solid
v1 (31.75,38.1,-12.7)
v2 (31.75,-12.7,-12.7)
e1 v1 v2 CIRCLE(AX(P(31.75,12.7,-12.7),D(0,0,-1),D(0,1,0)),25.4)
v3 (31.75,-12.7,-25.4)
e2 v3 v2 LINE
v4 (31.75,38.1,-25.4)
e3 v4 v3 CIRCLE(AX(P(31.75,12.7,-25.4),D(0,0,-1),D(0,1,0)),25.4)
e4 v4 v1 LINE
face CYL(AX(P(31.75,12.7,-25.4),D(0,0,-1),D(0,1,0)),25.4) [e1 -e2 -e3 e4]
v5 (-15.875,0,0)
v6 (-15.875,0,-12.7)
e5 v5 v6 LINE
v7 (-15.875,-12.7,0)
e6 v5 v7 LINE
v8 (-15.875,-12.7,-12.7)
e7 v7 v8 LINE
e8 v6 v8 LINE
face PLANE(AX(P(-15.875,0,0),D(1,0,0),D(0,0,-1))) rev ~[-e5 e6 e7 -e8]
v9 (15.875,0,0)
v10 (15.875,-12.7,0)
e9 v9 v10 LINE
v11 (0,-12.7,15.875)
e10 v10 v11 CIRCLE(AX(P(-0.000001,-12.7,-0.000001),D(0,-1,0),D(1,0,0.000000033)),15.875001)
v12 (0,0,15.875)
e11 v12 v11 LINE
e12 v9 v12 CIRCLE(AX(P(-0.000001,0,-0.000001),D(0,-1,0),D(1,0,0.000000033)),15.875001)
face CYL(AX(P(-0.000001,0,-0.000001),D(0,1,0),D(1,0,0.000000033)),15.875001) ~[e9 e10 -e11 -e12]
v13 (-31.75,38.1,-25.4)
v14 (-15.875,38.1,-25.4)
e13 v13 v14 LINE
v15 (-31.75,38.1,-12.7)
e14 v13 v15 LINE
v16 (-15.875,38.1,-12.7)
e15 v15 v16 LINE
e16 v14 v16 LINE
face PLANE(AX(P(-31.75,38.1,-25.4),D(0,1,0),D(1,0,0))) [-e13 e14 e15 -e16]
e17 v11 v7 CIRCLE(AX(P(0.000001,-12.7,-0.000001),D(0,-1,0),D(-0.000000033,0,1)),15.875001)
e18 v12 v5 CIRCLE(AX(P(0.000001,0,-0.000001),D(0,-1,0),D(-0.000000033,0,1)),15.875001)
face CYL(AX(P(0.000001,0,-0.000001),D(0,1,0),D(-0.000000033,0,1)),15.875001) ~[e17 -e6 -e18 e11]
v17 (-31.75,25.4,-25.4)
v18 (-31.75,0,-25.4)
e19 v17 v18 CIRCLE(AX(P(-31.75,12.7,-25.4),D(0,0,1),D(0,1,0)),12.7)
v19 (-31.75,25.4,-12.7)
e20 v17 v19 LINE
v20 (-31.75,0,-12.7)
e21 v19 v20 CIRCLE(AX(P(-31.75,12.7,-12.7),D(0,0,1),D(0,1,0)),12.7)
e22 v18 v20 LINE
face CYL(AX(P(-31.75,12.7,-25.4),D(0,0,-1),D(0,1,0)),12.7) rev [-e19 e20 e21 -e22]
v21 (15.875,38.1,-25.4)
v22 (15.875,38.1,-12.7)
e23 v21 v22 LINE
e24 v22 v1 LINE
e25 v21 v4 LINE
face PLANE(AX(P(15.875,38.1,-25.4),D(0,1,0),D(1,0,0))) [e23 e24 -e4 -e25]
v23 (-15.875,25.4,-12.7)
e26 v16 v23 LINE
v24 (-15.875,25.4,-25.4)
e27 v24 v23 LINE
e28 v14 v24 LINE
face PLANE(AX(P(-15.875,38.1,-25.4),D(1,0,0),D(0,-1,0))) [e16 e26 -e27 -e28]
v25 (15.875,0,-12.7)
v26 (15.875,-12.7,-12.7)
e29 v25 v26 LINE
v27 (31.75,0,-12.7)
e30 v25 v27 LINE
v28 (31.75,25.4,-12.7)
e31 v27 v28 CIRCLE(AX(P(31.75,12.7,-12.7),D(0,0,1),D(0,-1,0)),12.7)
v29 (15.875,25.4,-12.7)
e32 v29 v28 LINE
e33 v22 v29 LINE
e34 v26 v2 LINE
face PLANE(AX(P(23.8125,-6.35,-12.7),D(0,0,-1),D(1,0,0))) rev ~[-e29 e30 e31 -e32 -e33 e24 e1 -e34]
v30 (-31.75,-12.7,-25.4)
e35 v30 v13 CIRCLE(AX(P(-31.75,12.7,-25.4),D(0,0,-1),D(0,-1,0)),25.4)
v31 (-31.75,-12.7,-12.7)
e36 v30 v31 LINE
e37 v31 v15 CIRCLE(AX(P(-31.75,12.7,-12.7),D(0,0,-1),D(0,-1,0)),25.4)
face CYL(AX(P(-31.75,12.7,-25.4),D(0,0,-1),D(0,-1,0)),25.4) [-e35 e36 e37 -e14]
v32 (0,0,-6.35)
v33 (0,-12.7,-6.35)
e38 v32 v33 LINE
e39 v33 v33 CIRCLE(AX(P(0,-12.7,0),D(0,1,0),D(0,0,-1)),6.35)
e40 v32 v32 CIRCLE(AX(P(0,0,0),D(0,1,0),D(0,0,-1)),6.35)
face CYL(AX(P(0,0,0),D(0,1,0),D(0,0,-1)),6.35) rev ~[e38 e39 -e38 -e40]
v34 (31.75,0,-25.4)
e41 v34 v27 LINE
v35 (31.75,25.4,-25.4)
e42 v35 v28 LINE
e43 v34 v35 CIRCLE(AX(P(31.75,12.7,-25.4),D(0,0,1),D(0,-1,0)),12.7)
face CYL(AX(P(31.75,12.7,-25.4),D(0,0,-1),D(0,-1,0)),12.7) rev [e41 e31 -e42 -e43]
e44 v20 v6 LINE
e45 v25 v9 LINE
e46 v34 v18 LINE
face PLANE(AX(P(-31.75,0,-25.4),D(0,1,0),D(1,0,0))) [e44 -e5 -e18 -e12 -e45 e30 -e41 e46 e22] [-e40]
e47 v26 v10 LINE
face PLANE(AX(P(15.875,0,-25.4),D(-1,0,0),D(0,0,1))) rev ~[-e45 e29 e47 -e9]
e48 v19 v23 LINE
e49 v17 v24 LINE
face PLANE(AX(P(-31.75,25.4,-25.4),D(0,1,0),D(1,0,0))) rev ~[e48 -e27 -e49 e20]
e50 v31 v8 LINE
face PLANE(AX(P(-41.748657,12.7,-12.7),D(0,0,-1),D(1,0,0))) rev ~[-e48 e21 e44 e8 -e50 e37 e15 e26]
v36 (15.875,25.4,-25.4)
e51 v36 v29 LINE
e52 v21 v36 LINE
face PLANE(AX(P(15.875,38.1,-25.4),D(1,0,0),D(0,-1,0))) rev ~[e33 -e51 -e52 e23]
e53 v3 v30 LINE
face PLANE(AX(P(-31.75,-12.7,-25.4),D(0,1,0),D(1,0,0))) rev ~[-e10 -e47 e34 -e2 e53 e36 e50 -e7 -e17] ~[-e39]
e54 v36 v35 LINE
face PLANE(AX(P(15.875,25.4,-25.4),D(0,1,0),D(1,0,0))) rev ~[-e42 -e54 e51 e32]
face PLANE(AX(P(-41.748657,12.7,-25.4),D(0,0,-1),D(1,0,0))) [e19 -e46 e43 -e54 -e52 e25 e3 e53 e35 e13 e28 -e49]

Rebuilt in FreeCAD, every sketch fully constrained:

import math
import FreeCAD as App
import Part
import Sketcher
Q = App.Units.Quantity

doc = App.newDocument("Part")
body = doc.addObject("PartDesign::Body", "Body")

# Sketch on XZ plane
sketch1 = body.newObject("Sketcher::SketchObject", "Sketch")
sketch1.AttachmentSupport = (doc.getObject("XZ_Plane"), [""])
sketch1.MapMode = "FlatFace"
sketch1.addGeometry(Part.LineSegment(App.Vector(16, -25, 0), App.Vector(16, 0, 0)), False)
sketch1.addGeometry(Part.ArcOfCircle(Part.Circle(App.Vector(0, 0, 0), App.Vector(0, 0, 1), 16), math.radians(0), math.radians(90)), False)
sketch1.addGeometry(Part.ArcOfCircle(Part.Circle(App.Vector(0, 0, 0), App.Vector(0, 0, 1), 16), math.radians(90), math.radians(180)), False)
sketch1.addGeometry(Part.LineSegment(App.Vector(-16, 0, 0), App.Vector(-16, -25, 0)), False)
sketch1.addGeometry(Part.LineSegment(App.Vector(-16, -25, 0), App.Vector(16, -25, 0)), False)
sketch1.addGeometry(Part.Circle(App.Vector(0, 0, 0), App.Vector(0, 0, 1), 6), False)
sketch1.addConstraint(Sketcher.Constraint("Tangent", 0, 2, 1, 1))
sketch1.addConstraint(Sketcher.Constraint("Tangent", 1, 2, 2, 1))
sketch1.addConstraint(Sketcher.Constraint("Tangent", 2, 2, 3, 1))
sketch1.addConstraint(Sketcher.Constraint("Coincident", 3, 2, 4, 1))
sketch1.addConstraint(Sketcher.Constraint("Coincident", 4, 2, 0, 1))
sketch1.addConstraint(Sketcher.Constraint("Vertical", 0))
sketch1.addConstraint(Sketcher.Constraint("Vertical", 3))
sketch1.addConstraint(Sketcher.Constraint("Horizontal", 4))
sketch1.addConstraint(Sketcher.Constraint("Coincident", 1, 3, -1, 1))
sketch1.addConstraint(Sketcher.Constraint("Coincident", 5, 3, -1, 1))
sketch1.addConstraint(Sketcher.Constraint("Equal", 1, 2))
sketch1.addConstraint(Sketcher.Constraint("PointOnObject", 1, 2, -2))
sketch1.addConstraint(Sketcher.Constraint("Diameter", 5, Q("0.5 in")))
sketch1.addConstraint(Sketcher.Constraint("DistanceY", 0, 1, 0, 2, Q("1 in")))
sketch1.addConstraint(Sketcher.Constraint("Radius", 1, Q("0.625 in")))
pad1 = body.newObject("PartDesign::Pad", "Pad")
pad1.Profile = sketch1
pad1.Length = Q("0.5 in")

# Sketch on XY plane
sketch2 = body.newObject("Sketcher::SketchObject", "Sketch001")
sketch2.AttachmentSupport = (doc.getObject("XY_Plane"), [""])
sketch2.MapMode = "FlatFace"
sketch2.AttachmentOffset = App.Placement(App.Vector(0, 0, -1 * 25.4), App.Rotation())
sketch2.addGeometry(Part.ArcOfCircle(Part.Circle(App.Vector(-32, 13, 0), App.Vector(0, 0, 1), 13), math.radians(90), math.radians(270)), False)
sketch2.addGeometry(Part.LineSegment(App.Vector(-32, 0, 0), App.Vector(-16, 0, 0)), False)
sketch2.addGeometry(Part.LineSegment(App.Vector(-16, 0, 0), App.Vector(-16, -13, 0)), False)
sketch2.addGeometry(Part.LineSegment(App.Vector(-16, -13, 0), App.Vector(-32, -13, 0)), False)
sketch2.addGeometry(Part.ArcOfCircle(Part.Circle(App.Vector(-32, 13, 0), App.Vector(0, 0, 1), 25), math.radians(90), math.radians(270)), False)
sketch2.addGeometry(Part.LineSegment(App.Vector(-32, 38, 0), App.Vector(-16, 38, 0)), False)
sketch2.addGeometry(Part.LineSegment(App.Vector(-16, 38, 0), App.Vector(-16, 25, 0)), False)
sketch2.addGeometry(Part.LineSegment(App.Vector(-16, 25, 0), App.Vector(-32, 25, 0)), False)
sketch2.addGeometry(Part.LineSegment(App.Vector(16, -13, 0), App.Vector(16, 0, 0)), False)
sketch2.addGeometry(Part.LineSegment(App.Vector(16, 0, 0), App.Vector(32, 0, 0)), False)
sketch2.addGeometry(Part.ArcOfCircle(Part.Circle(App.Vector(32, 13, 0), App.Vector(0, 0, 1), 13), math.radians(-90), math.radians(90)), False)
sketch2.addGeometry(Part.LineSegment(App.Vector(32, 25, 0), App.Vector(16, 25, 0)), False)
sketch2.addGeometry(Part.LineSegment(App.Vector(16, 25, 0), App.Vector(16, 38, 0)), False)
sketch2.addGeometry(Part.LineSegment(App.Vector(16, 38, 0), App.Vector(32, 38, 0)), False)
sketch2.addGeometry(Part.ArcOfCircle(Part.Circle(App.Vector(32, 13, 0), App.Vector(0, 0, 1), 25), math.radians(-90), math.radians(90)), False)
sketch2.addGeometry(Part.LineSegment(App.Vector(32, -13, 0), App.Vector(16, -13, 0)), False)
sketch2.addConstraint(Sketcher.Constraint("Tangent", 0, 2, 1, 1))
sketch2.addConstraint(Sketcher.Constraint("Coincident", 1, 2, 2, 1))
sketch2.addConstraint(Sketcher.Constraint("Coincident", 2, 2, 3, 1))
sketch2.addConstraint(Sketcher.Constraint("Tangent", 3, 2, 4, 2))
sketch2.addConstraint(Sketcher.Constraint("Tangent", 4, 1, 5, 1))
sketch2.addConstraint(Sketcher.Constraint("Coincident", 5, 2, 6, 1))
sketch2.addConstraint(Sketcher.Constraint("Coincident", 6, 2, 7, 1))
sketch2.addConstraint(Sketcher.Constraint("Tangent", 7, 2, 0, 1))
sketch2.addConstraint(Sketcher.Constraint("Coincident", 8, 2, 9, 1))
sketch2.addConstraint(Sketcher.Constraint("Tangent", 9, 2, 10, 1))
sketch2.addConstraint(Sketcher.Constraint("Tangent", 10, 2, 11, 1))
sketch2.addConstraint(Sketcher.Constraint("Coincident", 11, 2, 12, 1))
sketch2.addConstraint(Sketcher.Constraint("Coincident", 12, 2, 13, 1))
sketch2.addConstraint(Sketcher.Constraint("Tangent", 13, 2, 14, 2))
sketch2.addConstraint(Sketcher.Constraint("Tangent", 14, 1, 15, 1))
sketch2.addConstraint(Sketcher.Constraint("Coincident", 15, 2, 8, 1))
sketch2.addConstraint(Sketcher.Constraint("Horizontal", 1))
sketch2.addConstraint(Sketcher.Constraint("Vertical", 2))
sketch2.addConstraint(Sketcher.Constraint("Horizontal", 3))
sketch2.addConstraint(Sketcher.Constraint("Horizontal", 5))
sketch2.addConstraint(Sketcher.Constraint("Vertical", 6))
sketch2.addConstraint(Sketcher.Constraint("Horizontal", 7))
sketch2.addConstraint(Sketcher.Constraint("Vertical", 8))
sketch2.addConstraint(Sketcher.Constraint("Horizontal", 9))
sketch2.addConstraint(Sketcher.Constraint("Horizontal", 11))
sketch2.addConstraint(Sketcher.Constraint("Vertical", 12))
sketch2.addConstraint(Sketcher.Constraint("Horizontal", 13))
sketch2.addConstraint(Sketcher.Constraint("Horizontal", 15))
sketch2.addConstraint(Sketcher.Constraint("Coincident", 4, 3, 0, 3))
sketch2.addConstraint(Sketcher.Constraint("Coincident", 14, 3, 10, 3))
sketch2.addConstraint(Sketcher.Constraint("Equal", 0, 10))
sketch2.addConstraint(Sketcher.Constraint("Equal", 4, 14))
sketch2.addConstraint(Sketcher.Constraint("Symmetric", 1, 2, 8, 2, -1, 1))
sketch2.addConstraint(Sketcher.Constraint("Symmetric", 0, 3, 10, 3, -2))
sketch2.addConstraint(Sketcher.Constraint("Vertical", 2, 2, 5, 2))
sketch2.addConstraint(Sketcher.Constraint("Vertical", 8, 2, 11, 2))
sketch2.addConstraint(Sketcher.Constraint("Radius", 4, Q("1 in")))
sketch2.addConstraint(Sketcher.Constraint("Radius", 0, Q("0.5 in")))
sketch2.addConstraint(Sketcher.Constraint("DistanceX", 0, 3, 10, 3, Q("2.5 in")))
sketch2.addConstraint(Sketcher.Constraint("DistanceX", 1, 1, 1, 2, Q("0.625 in")))
pad2 = body.newObject("PartDesign::Pad", "Pad001")
pad2.Profile = sketch2
pad2.Length = Q("0.5 in")

doc.recompute()
